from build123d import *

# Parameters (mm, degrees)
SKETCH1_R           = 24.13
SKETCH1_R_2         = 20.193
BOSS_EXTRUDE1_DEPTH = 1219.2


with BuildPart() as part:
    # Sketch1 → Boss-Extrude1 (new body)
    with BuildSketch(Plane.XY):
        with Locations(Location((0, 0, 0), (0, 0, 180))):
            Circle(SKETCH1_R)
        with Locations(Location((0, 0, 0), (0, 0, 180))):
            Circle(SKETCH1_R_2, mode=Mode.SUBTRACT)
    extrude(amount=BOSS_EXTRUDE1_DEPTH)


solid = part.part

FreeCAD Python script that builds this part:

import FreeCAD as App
import Part
import Sketcher

V = App.Vector
Q = App.Units.Quantity

doc = App.newDocument("Part")
body = doc.addObject("PartDesign::Body", "Body")

sketch1 = doc.addObject("Sketcher::SketchObject", "Sketch")
body.addObject(sketch1)
sketch1.AttachmentSupport = (doc.XY_Plane, [""])
sketch1.MapMode = "FlatFace"
sketch1.addGeometry([
    Part.Circle(V(0, 0, 0), V(0, 0, 1), 24),
    Part.Circle(V(0, 0, 0), V(0, 0, 1), 20),
], False)
sketch1.addConstraint([
    Sketcher.Constraint("Coincident", 0, 3, -1, 1),
    Sketcher.Constraint("Coincident", 1, 3, -1, 1),
    Sketcher.Constraint("Diameter", 0, Q("1.9 in")),
    Sketcher.Constraint("Diameter", 1, Q("1.59 in")),
])
pad1 = doc.addObject("PartDesign::Pad", "Pad")
body.addObject(pad1)
pad1.Profile = sketch1
pad1.Length = Q("48 in")

doc.recompute()
